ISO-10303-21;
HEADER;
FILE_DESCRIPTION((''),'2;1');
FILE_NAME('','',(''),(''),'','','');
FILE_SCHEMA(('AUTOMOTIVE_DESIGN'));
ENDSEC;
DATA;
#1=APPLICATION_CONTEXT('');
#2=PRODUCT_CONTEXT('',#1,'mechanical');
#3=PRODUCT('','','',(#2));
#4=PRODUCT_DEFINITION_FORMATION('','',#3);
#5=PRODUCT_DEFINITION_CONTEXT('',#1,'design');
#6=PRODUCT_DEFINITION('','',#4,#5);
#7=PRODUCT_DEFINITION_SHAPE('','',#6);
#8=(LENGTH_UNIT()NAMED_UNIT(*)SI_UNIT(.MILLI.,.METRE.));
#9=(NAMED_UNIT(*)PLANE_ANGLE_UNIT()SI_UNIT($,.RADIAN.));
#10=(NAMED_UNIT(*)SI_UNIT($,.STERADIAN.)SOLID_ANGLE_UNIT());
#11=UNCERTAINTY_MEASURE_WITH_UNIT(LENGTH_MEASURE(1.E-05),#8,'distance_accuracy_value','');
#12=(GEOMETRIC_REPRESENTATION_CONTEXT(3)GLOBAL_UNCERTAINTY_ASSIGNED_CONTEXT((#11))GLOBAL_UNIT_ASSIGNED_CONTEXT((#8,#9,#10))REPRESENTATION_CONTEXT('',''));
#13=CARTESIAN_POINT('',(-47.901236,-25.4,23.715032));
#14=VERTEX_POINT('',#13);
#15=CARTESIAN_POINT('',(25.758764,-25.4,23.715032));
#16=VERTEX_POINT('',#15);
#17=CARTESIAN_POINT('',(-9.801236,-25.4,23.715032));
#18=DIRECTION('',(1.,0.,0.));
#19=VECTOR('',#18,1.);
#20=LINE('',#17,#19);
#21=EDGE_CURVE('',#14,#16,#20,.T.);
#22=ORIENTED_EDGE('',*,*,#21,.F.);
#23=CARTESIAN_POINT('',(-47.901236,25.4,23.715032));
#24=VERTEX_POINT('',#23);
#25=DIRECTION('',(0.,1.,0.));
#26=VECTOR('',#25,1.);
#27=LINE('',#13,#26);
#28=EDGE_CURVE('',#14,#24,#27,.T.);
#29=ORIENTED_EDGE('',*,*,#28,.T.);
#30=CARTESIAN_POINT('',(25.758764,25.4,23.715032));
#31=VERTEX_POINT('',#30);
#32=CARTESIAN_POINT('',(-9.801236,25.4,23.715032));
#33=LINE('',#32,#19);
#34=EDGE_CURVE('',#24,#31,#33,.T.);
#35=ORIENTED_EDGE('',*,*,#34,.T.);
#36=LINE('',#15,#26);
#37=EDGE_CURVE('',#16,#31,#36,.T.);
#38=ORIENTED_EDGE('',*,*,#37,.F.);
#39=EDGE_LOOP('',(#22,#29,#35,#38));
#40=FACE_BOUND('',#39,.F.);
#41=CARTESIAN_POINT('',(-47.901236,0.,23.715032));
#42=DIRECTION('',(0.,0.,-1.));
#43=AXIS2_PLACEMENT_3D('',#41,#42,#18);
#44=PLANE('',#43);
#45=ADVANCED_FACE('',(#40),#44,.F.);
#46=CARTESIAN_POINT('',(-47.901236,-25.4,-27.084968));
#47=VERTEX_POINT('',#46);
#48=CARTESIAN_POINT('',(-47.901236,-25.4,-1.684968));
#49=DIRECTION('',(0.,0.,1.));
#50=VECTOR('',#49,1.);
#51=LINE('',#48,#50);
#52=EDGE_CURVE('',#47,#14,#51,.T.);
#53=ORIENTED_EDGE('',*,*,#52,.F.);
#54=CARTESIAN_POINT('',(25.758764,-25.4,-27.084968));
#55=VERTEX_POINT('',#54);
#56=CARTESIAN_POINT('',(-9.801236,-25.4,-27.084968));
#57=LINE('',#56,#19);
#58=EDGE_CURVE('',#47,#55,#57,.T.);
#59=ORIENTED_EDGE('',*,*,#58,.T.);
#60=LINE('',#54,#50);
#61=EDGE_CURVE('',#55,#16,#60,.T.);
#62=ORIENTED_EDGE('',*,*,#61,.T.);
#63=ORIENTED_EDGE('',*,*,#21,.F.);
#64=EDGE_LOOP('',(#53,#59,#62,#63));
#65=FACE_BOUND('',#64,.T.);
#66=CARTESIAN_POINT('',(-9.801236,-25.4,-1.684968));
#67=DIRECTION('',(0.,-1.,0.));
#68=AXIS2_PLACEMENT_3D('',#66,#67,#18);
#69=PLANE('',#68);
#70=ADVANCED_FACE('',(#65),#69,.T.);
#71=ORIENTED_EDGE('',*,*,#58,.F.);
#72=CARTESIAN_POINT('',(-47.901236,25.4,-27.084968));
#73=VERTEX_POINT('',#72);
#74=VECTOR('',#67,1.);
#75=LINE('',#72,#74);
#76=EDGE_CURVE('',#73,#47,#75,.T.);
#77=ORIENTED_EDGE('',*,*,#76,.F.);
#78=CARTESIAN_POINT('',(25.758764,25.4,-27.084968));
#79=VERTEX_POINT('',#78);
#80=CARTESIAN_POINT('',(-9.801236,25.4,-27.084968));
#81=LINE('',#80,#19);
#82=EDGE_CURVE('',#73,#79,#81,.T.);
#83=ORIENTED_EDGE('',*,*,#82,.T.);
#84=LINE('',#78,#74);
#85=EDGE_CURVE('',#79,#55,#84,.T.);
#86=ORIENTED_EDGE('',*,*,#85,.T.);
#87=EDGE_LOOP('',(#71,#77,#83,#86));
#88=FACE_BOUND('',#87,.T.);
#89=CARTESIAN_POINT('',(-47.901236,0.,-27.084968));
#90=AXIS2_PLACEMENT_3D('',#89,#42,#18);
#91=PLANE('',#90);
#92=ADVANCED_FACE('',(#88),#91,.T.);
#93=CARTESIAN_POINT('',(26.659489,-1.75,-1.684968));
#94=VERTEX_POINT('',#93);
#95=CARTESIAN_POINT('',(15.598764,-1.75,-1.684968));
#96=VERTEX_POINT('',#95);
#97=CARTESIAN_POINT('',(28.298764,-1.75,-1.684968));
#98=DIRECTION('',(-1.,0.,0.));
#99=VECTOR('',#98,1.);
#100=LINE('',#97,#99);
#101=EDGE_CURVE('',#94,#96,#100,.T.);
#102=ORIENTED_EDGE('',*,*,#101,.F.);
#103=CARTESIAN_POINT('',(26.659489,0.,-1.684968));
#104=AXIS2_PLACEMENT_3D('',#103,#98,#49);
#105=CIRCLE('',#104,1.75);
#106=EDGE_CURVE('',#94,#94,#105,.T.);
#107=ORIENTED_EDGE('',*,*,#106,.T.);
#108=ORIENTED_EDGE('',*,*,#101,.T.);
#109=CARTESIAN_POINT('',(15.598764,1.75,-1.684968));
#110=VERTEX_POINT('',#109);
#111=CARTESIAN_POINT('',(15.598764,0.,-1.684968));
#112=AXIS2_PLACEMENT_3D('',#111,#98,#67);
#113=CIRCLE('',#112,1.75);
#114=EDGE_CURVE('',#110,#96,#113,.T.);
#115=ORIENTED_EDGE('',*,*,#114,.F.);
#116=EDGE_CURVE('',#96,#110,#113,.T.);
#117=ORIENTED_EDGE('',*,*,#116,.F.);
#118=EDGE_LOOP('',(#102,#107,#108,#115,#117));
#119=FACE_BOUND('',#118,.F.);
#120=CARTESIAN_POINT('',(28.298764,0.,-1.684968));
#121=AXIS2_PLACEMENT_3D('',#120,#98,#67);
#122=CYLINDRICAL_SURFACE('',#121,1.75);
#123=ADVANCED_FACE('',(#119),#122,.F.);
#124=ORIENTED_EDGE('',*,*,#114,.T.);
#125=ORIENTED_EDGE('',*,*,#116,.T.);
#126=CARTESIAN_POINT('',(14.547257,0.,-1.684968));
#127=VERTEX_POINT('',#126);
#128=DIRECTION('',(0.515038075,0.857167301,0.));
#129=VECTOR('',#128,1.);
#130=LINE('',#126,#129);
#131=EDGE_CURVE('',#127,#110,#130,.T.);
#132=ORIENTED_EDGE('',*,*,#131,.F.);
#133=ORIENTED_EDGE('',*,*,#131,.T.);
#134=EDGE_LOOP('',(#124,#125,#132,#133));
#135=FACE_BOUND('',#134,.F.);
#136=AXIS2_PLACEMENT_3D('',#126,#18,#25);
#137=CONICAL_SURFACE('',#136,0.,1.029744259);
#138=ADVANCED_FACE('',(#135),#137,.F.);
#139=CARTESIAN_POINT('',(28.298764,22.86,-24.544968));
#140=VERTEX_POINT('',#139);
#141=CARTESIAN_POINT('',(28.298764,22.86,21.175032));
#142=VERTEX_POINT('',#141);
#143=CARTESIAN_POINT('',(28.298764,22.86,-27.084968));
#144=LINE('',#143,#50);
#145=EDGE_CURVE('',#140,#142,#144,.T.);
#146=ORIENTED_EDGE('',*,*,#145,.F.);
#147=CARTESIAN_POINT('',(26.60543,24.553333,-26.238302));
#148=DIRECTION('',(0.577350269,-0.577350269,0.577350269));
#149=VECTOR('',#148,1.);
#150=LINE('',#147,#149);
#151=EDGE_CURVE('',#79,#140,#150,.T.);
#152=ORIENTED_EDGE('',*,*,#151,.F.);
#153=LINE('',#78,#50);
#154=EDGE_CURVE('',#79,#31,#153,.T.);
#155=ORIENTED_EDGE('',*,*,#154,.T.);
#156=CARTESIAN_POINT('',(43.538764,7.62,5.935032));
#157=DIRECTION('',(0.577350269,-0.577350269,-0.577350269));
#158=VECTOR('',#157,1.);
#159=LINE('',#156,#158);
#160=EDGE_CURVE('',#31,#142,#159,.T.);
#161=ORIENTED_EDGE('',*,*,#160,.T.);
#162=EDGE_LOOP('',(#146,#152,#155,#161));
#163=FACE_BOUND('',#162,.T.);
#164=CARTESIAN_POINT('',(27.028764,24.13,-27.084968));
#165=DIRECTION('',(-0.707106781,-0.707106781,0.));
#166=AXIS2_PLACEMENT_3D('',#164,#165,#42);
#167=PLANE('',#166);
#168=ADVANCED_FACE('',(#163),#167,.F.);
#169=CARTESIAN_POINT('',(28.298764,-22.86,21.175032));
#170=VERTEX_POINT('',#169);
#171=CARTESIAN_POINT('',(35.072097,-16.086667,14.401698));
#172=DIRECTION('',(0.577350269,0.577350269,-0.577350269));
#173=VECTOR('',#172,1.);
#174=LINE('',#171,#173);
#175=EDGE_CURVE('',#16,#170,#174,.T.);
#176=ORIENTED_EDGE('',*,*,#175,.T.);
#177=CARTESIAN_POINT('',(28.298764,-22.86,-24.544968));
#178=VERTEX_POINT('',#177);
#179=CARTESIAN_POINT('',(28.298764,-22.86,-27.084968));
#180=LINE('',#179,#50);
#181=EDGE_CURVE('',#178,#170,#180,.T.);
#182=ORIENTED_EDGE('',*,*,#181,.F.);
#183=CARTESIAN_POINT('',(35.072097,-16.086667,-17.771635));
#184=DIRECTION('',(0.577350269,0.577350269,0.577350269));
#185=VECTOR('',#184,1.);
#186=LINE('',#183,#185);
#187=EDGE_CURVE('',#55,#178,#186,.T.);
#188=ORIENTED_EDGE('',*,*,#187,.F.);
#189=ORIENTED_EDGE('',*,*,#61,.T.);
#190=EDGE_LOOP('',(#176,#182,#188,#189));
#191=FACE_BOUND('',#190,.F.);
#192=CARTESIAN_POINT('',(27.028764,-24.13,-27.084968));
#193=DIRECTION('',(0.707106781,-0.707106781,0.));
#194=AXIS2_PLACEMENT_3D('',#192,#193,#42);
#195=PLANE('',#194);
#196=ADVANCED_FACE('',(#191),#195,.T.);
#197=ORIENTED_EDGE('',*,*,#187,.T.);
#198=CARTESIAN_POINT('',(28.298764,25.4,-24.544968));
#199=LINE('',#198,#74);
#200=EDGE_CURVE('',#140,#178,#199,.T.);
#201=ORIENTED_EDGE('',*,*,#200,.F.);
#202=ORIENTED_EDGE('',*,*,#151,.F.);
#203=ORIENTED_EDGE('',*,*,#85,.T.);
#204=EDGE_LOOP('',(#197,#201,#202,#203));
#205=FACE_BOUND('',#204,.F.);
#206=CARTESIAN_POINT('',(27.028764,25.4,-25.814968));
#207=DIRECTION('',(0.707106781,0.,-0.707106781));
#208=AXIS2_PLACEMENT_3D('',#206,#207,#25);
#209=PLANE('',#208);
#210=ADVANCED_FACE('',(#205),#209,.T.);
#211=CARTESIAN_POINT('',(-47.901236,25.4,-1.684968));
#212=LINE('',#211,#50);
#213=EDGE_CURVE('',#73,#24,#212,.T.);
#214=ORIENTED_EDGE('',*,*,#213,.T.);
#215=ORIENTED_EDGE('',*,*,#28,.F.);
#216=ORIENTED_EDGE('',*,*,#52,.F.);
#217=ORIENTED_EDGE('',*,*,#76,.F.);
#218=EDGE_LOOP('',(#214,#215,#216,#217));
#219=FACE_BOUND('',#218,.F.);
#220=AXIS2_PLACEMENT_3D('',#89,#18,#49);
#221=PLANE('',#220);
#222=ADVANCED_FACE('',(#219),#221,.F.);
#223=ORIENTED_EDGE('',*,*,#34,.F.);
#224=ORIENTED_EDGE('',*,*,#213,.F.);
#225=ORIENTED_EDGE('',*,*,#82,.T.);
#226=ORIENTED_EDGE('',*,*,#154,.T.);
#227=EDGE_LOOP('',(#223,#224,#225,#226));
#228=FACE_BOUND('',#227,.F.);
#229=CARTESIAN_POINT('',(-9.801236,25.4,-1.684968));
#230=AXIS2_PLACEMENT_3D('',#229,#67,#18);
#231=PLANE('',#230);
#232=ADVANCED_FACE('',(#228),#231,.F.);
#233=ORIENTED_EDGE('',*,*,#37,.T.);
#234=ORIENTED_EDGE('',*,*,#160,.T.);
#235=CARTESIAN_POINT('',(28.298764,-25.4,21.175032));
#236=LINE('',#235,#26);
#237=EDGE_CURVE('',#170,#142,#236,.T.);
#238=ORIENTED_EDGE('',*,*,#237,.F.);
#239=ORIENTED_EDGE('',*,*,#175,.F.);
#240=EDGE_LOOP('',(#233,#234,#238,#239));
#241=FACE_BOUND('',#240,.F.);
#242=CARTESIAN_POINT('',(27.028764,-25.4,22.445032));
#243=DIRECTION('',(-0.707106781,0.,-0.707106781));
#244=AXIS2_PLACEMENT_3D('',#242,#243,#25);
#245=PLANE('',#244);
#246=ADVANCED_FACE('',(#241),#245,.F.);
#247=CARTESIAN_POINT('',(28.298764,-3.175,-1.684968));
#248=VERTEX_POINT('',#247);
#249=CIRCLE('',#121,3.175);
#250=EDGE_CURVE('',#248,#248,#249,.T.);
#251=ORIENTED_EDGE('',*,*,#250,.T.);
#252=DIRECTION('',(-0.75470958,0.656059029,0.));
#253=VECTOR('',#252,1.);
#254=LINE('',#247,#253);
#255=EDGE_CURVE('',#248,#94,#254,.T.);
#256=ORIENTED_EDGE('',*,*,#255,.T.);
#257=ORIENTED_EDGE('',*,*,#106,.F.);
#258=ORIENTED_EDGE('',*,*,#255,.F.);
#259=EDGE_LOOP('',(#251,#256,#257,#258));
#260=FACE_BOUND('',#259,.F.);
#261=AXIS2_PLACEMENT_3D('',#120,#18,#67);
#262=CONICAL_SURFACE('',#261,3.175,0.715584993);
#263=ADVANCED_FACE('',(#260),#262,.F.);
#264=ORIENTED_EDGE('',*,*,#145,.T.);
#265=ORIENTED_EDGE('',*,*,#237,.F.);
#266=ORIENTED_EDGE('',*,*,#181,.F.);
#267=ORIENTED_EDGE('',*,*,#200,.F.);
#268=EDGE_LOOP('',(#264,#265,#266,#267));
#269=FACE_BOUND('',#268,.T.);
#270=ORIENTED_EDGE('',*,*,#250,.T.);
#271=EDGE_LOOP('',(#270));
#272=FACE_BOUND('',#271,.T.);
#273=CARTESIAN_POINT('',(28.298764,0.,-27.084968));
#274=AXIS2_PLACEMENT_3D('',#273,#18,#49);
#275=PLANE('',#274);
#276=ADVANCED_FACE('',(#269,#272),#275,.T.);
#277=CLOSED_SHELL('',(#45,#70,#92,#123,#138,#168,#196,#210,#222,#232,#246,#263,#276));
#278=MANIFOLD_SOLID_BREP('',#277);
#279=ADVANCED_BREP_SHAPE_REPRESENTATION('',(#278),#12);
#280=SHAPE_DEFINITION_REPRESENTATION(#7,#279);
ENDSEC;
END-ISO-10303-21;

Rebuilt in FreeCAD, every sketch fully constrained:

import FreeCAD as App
import Part
import Sketcher
Q = App.Units.Quantity


def edges_at(feature, points):
    """Names of the edges that pass closest to the given points."""
    edges = feature.Shape.Edges
    near = lambda p: min(range(len(edges)), key=lambda i: edges[i].distToShape(Part.Vertex(*p))[0])
    return sorted({f"Edge{near(p) + 1}" for p in points})


def add_polygon(sketch, points):
    """Adds a closed chain of lines whose ends are joined by coincident constraints."""
    first, n = sketch.GeometryCount, len(points)
    for a, b in zip(points, points[1:] + points[:1]):
        sketch.addGeometry(Part.LineSegment(App.Vector(*a, 0), App.Vector(*b, 0)), False)
    for i in range(n):
        sketch.addConstraint(Sketcher.Constraint("Coincident", first + i, 2, first + (i + 1) % n, 1))

doc = App.newDocument("Part")
params = doc.addObject("Spreadsheet::Sheet", "Params")
for row, (alias, value) in enumerate([
    ("sketch1_width", "3 in"),
    ("sketch1_height", "2 in"),
    ("pad1_length", "2 in"),
    ("hole_diameter", "3.5 mm"),
    ("hole_depth", "0.5 in"),
    ("hole_csink_diameter", "0.25 in"),
    ("chamfer_size", "0.1 in"),
], start=1):
    params.set(f"A{row}", alias)
    params.set(f"B{row}", "=" + value)
    params.setAlias(f"B{row}", alias)

body = doc.addObject("PartDesign::Body", "Body")

# Sketch on XZ plane
sketch1 = body.newObject("Sketcher::SketchObject", "Sketch")
sketch1.AttachmentSupport = (doc.getObject("XZ_Plane"), [""])
sketch1.MapMode = "FlatFace"
add_polygon(sketch1, [(-48, 24), (-48, -27), (28, -27), (28, 24)])  # lines 0-3
sketch1.addConstraint([
    Sketcher.Constraint("Vertical", 0),
    Sketcher.Constraint("Horizontal", 1),
    Sketcher.Constraint("Vertical", 2),
    Sketcher.Constraint("Horizontal", 3),
    Sketcher.Constraint("DistanceX", 1, 1, 1, 2, Q("3 in")),
    Sketcher.Constraint("DistanceY", 0, 2, 0, 1, Q("2 in")),
    Sketcher.Constraint("DistanceY", 0, 2, -1, 1, 27.084968),
    Sketcher.Constraint("DistanceX", 0, 2, -1, 1, 47.901236),
])
sketch1.setExpression("Constraints[8]", "Params.sketch1_width")
sketch1.setExpression("Constraints[9]", "Params.sketch1_height")
pad1 = body.newObject("PartDesign::Pad", "Pad")
pad1.Profile = sketch1
pad1.setExpression("Length", "Params.pad1_length")
pad1.Midplane = True

# Sketch on YZ plane
sketch2 = body.newObject("Sketcher::SketchObject", "Sketch001")
sketch2.AttachmentSupport = (doc.getObject("YZ_Plane"), [""])
sketch2.MapMode = "FlatFace"
sketch2.AttachmentOffset = App.Placement(App.Vector(0, 0, 28.298764), App.Rotation())
sketch2.addGeometry(Part.Circle(App.Vector(0, -1.7, 0), App.Vector(0, 0, 1), 1.8), False)
sketch2.addConstraint([
    Sketcher.Constraint("PointOnObject", 0, 3, -2),
    Sketcher.Constraint("Diameter", 0, 3.5),
    Sketcher.Constraint("DistanceY", 0, 3, -1, 1, 1.684968),
])
doc.recompute()
hole = body.newObject("PartDesign::Hole", "Hole")
hole.Profile = sketch2
hole.ThreadType = "None"
hole.setExpression("Diameter", "Params.hole_diameter")
hole.DepthType = "Dimension"
hole.setExpression("Depth", "Params.hole_depth")
hole.DrillPoint = "Angled"
hole.DrillPointAngle = 118
hole.HoleCutType = "Countersink"
hole.setExpression("HoleCutDiameter", "Params.hole_csink_diameter")
hole.HoleCutCountersinkAngle = 82
doc.recompute()

chamfer = body.newObject("PartDesign::Chamfer", "Chamfer")
chamfer.Base = (hole, edges_at(hole, [
    (28.299, 0, -27.085),
    (28.299, -25.4, -1.685),
    (28.299, 0, 23.715),
    (28.299, 25.4, -1.685),
]))
chamfer.setExpression("Size", "Params.chamfer_size")

doc.recompute()
